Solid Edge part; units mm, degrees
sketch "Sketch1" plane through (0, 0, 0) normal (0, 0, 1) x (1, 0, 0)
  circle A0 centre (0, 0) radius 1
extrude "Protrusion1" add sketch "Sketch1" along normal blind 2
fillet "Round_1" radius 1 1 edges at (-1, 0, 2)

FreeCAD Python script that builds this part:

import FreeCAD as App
import Part
import Sketcher

V = App.Vector
Q = App.Units.Quantity


def edges_at(feature, points):
    """Names of the edges that pass closest to the given points."""
    edges = feature.Shape.Edges
    near = lambda p: min(range(len(edges)), key=lambda i: edges[i].distToShape(Part.Vertex(*p))[0])
    return sorted({f"Edge{near(p) + 1}" for p in points})

doc = App.newDocument("Part")
body = doc.addObject("PartDesign::Body", "Body")

sketch1 = body.newObject("Sketcher::SketchObject", "Sketch")
sketch1.AttachmentSupport = (doc.getObject("XY_Plane"), [""])
sketch1.MapMode = "FlatFace"
sketch1.addGeometry(Part.Circle(V(0, 0, 0), V(0, 0, 1), 1), False)
sketch1.addConstraint([
    Sketcher.Constraint("Coincident", 0, 3, -1, 1),
    Sketcher.Constraint("Diameter", 0, Q("2 mm")),
])
pad1 = body.newObject("PartDesign::Pad", "Pad")
pad1.Profile = sketch1
pad1.Length = 2
doc.recompute()

fillet = body.newObject("PartDesign::Fillet", "Fillet")
fillet.Base = (pad1, edges_at(pad1, [(-1, 0, 2)]))
fillet.Radius = 1

doc.recompute()
